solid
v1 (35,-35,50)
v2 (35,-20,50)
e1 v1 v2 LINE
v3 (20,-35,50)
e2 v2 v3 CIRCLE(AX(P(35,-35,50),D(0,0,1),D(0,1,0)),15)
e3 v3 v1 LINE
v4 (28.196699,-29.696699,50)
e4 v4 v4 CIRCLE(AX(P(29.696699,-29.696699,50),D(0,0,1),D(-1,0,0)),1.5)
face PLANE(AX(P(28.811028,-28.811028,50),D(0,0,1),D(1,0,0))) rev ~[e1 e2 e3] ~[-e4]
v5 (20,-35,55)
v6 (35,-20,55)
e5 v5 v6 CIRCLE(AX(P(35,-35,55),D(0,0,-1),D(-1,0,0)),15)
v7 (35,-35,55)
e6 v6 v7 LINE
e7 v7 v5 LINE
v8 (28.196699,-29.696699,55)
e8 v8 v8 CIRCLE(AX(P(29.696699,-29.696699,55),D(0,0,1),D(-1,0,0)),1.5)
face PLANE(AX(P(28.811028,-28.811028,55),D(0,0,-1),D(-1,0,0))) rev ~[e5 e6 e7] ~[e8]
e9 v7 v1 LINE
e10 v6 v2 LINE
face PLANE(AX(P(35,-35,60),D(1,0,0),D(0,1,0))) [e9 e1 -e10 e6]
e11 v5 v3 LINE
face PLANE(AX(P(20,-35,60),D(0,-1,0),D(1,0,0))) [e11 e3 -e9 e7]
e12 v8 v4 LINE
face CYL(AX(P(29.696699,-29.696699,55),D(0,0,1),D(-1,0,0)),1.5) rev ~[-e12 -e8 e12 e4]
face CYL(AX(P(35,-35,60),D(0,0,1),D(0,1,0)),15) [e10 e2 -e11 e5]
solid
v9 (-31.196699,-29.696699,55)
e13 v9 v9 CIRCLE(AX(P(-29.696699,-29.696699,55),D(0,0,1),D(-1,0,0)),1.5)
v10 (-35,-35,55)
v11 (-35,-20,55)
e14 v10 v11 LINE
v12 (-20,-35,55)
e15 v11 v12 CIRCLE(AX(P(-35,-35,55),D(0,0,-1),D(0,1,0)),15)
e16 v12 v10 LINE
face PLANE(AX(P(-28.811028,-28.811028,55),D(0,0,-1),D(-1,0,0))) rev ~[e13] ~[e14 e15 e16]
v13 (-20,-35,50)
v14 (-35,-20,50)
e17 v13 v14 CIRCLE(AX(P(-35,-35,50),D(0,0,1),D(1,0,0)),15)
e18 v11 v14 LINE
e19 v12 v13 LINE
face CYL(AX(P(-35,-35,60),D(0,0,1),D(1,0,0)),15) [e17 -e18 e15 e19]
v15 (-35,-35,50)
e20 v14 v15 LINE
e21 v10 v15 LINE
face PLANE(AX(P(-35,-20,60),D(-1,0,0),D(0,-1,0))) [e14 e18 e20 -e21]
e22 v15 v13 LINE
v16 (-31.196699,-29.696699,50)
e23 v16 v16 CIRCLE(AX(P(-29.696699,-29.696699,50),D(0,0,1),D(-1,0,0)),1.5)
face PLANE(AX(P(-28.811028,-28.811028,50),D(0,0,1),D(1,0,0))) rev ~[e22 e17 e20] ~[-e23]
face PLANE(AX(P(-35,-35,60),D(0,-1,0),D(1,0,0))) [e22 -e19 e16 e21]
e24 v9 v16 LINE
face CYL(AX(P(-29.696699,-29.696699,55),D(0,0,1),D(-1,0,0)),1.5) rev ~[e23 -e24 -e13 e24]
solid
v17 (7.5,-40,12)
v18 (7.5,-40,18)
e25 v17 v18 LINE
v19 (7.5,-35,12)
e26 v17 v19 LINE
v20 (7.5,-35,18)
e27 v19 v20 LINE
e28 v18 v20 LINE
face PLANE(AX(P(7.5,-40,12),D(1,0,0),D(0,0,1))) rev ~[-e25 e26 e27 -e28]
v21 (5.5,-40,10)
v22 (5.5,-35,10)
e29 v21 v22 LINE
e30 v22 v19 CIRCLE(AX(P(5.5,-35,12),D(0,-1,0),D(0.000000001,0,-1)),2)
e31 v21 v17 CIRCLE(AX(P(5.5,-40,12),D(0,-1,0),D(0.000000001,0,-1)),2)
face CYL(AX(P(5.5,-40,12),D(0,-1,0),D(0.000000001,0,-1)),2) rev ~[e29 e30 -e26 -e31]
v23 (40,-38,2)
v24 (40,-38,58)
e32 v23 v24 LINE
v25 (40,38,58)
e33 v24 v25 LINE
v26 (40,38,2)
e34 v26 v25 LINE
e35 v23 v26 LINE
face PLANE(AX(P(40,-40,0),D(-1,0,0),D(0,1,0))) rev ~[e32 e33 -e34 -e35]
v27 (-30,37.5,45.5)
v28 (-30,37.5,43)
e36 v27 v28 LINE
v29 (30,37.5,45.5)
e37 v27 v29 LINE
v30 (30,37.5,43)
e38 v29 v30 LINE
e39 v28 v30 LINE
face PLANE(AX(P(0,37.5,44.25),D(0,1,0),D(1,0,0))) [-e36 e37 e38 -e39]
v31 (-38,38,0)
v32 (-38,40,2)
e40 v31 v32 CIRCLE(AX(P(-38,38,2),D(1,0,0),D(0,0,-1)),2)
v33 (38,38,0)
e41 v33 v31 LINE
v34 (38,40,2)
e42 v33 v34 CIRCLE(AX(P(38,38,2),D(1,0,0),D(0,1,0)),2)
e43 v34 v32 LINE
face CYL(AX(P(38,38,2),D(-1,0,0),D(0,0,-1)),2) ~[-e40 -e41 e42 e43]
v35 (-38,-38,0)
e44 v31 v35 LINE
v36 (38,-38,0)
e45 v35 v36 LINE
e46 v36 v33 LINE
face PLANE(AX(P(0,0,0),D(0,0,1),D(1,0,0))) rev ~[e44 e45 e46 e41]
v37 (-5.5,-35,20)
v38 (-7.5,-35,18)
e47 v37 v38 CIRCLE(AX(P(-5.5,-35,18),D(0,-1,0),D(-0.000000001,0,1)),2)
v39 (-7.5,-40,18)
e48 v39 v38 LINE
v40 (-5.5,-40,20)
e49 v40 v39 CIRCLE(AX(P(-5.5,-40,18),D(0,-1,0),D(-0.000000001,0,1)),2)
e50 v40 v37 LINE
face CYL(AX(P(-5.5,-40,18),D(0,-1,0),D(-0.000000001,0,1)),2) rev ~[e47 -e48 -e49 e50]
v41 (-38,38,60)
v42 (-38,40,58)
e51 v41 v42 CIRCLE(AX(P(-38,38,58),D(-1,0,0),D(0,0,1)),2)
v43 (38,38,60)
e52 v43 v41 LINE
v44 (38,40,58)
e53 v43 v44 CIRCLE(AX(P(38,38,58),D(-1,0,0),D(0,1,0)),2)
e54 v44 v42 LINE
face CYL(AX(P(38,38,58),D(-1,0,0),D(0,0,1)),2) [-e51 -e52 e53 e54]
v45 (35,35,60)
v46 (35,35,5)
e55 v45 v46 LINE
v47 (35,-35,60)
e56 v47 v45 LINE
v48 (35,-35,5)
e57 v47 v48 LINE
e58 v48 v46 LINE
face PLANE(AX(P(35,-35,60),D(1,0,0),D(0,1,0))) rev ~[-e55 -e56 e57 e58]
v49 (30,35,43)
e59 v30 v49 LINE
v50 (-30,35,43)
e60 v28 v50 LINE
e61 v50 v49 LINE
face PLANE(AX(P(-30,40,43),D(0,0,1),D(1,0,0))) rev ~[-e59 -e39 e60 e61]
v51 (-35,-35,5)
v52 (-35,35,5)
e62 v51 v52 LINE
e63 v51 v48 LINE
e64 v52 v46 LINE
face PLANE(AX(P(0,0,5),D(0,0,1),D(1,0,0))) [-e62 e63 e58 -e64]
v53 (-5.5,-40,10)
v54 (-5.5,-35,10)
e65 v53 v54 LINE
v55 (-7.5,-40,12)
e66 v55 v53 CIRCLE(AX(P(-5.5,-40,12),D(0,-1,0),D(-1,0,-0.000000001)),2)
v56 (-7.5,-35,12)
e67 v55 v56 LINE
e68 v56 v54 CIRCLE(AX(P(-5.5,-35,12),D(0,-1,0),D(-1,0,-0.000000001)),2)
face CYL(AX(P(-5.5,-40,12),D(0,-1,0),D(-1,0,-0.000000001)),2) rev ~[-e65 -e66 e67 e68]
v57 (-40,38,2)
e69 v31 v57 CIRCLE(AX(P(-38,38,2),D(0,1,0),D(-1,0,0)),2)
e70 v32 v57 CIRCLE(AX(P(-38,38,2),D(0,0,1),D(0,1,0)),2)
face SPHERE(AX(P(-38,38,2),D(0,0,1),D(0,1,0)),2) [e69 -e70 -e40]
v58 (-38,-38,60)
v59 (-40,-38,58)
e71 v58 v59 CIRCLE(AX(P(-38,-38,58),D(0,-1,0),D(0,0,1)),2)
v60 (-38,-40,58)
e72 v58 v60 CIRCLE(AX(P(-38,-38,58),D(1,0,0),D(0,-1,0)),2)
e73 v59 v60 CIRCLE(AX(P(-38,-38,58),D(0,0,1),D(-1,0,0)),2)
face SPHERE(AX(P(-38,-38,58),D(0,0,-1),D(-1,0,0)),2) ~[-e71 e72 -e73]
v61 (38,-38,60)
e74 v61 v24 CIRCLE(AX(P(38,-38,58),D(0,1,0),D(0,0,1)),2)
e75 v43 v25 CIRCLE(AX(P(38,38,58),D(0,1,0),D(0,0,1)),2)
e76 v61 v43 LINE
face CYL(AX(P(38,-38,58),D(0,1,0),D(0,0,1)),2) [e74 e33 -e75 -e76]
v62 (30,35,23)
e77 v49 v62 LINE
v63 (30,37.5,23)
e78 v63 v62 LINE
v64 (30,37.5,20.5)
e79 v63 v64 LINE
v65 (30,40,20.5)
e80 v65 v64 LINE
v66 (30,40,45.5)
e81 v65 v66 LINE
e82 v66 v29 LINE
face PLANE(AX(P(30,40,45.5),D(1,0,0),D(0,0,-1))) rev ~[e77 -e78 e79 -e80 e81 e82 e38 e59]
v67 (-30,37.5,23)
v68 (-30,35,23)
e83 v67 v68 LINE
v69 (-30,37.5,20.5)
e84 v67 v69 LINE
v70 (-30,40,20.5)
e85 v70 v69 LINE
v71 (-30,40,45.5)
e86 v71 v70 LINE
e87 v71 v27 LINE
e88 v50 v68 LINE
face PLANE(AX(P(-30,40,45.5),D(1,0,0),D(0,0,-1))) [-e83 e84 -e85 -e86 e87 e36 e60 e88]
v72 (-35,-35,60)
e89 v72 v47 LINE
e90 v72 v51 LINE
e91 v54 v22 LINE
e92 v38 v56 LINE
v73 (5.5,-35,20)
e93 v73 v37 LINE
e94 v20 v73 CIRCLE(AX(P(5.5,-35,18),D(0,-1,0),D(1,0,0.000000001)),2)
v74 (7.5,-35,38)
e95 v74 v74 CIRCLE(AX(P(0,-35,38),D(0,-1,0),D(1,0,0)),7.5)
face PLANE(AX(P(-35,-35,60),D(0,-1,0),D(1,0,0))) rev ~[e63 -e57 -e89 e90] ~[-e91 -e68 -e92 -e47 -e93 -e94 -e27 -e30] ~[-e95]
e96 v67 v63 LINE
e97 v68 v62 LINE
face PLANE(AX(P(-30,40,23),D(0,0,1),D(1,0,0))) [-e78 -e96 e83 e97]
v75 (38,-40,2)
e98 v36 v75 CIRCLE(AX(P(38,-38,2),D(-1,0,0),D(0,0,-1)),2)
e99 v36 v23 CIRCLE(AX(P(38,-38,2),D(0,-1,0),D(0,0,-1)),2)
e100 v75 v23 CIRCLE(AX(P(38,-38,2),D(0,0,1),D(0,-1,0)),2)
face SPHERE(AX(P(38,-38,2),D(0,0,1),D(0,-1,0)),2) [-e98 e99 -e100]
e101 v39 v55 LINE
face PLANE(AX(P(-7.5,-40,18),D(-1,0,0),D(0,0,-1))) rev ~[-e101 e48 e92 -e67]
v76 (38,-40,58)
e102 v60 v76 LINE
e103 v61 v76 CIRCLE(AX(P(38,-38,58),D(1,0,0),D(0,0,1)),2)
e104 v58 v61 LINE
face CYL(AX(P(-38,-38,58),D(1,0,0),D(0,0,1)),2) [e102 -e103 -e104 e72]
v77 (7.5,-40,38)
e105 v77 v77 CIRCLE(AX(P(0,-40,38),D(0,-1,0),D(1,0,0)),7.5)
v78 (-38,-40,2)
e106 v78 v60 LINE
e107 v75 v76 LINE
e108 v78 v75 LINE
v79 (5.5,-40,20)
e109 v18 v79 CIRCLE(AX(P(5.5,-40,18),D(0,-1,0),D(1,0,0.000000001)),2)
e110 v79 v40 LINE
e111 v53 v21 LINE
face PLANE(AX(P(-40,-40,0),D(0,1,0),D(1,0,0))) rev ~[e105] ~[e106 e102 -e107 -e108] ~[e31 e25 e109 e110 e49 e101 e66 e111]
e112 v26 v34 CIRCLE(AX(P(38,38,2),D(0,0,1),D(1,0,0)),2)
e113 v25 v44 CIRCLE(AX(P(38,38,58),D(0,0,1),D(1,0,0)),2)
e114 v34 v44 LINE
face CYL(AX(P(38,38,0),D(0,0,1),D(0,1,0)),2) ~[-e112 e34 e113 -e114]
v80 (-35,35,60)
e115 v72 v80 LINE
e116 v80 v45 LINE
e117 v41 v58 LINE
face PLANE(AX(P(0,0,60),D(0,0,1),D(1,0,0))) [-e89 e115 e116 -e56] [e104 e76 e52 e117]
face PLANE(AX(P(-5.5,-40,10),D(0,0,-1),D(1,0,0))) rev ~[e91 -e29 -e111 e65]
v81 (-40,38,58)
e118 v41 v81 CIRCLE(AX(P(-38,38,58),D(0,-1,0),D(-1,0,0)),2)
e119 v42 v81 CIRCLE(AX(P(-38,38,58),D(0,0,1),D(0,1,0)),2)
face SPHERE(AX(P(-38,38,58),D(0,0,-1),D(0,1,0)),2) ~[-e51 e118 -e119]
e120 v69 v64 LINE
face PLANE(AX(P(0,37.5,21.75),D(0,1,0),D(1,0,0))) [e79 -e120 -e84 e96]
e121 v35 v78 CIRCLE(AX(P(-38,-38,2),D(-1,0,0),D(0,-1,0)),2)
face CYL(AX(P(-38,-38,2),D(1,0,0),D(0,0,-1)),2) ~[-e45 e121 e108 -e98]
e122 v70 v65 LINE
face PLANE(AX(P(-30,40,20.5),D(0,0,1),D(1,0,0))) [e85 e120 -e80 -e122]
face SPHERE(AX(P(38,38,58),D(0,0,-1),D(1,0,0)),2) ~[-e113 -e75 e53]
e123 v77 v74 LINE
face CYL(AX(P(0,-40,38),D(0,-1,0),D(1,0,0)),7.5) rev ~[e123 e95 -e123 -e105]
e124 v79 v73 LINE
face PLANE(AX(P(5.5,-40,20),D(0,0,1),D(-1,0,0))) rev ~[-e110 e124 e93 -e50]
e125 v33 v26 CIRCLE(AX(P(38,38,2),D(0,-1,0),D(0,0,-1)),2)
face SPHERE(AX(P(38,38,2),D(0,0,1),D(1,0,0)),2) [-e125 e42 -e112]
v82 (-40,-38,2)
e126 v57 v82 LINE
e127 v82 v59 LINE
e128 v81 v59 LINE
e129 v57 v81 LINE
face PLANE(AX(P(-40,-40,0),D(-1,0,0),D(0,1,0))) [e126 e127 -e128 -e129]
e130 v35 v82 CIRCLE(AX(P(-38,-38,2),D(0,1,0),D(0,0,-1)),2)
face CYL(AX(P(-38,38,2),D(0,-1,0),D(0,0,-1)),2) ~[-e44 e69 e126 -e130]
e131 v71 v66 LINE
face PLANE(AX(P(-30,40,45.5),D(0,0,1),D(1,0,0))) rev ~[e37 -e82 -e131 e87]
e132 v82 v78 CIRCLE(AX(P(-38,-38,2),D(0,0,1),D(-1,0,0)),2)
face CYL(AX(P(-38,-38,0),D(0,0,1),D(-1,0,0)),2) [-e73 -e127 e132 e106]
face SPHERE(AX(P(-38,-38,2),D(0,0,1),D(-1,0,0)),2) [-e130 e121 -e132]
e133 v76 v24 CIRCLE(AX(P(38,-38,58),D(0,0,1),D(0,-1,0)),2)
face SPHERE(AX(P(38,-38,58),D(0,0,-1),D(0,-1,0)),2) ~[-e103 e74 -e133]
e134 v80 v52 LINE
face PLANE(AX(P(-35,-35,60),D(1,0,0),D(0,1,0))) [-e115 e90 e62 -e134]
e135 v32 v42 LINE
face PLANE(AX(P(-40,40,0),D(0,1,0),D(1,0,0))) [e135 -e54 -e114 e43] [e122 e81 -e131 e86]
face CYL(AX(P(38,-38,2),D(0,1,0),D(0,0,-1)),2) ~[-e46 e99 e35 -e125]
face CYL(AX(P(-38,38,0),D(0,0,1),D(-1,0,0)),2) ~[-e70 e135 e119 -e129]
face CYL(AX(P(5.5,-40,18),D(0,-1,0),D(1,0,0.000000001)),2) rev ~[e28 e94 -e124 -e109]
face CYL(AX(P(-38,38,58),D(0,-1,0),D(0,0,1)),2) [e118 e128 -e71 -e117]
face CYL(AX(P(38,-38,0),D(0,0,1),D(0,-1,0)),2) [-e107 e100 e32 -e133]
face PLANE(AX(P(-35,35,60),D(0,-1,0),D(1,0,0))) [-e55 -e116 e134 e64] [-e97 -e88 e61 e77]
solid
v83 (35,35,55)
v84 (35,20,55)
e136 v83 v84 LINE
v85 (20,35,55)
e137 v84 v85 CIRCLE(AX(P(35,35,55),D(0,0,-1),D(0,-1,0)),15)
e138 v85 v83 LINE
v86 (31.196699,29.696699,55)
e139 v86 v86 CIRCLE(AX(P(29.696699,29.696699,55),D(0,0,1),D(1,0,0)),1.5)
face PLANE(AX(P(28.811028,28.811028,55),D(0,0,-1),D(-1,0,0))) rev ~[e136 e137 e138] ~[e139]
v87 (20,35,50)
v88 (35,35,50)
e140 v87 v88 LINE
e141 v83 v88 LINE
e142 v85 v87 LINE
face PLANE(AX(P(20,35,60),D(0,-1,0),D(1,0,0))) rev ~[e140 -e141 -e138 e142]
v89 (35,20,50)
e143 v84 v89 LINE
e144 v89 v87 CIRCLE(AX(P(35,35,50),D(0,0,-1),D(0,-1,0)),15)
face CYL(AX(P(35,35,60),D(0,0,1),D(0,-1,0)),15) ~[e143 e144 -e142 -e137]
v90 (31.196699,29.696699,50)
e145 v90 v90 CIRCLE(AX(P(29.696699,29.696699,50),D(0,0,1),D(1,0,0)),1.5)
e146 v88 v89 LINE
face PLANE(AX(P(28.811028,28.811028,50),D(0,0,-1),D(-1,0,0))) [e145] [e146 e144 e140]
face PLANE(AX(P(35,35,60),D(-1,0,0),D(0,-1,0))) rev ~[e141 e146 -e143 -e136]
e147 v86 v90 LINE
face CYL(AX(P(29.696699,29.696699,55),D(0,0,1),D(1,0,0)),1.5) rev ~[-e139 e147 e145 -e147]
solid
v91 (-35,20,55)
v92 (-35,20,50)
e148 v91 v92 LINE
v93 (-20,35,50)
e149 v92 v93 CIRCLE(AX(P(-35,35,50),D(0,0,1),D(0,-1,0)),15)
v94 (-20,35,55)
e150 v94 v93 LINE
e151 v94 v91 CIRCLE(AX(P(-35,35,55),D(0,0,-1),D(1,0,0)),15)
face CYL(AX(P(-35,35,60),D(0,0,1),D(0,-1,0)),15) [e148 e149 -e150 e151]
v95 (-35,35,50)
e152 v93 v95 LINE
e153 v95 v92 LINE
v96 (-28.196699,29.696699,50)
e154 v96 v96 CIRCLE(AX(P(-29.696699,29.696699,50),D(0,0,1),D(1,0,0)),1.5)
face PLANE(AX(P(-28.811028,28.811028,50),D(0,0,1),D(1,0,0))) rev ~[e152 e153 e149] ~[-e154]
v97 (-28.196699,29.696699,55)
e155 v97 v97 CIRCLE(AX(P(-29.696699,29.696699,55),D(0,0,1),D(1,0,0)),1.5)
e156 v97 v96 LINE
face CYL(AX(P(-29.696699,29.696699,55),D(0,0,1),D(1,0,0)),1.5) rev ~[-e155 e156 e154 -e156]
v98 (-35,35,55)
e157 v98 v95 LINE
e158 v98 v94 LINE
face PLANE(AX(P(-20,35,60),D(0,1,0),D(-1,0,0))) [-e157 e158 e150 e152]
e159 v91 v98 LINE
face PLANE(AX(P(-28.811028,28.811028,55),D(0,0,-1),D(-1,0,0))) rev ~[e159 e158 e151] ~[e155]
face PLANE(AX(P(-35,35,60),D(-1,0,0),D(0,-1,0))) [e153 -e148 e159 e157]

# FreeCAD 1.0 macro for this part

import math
import FreeCAD as App
import Part
import Sketcher
Q = App.Units.Quantity


def edges_at(feature, points):
    """Names of the edges that pass closest to the given points."""
    edges = feature.Shape.Edges
    near = lambda p: min(range(len(edges)), key=lambda i: edges[i].distToShape(Part.Vertex(*p))[0])
    return sorted({f"Edge{near(p) + 1}" for p in points})

doc = App.newDocument("Part")
body = doc.addObject("PartDesign::Body", "Body")

# Sketch on XY plane
sketch1 = body.newObject("Sketcher::SketchObject", "Sketch")
sketch1.AttachmentSupport = (doc.getObject("XY_Plane"), [""])
sketch1.MapMode = "FlatFace"
sketch1.addGeometry([
    Part.LineSegment(App.Vector(-40, 40, 0), App.Vector(-40, -40, 0)),
    Part.LineSegment(App.Vector(-40, -40, 0), App.Vector(40, -40, 0)),
    Part.LineSegment(App.Vector(40, -40, 0), App.Vector(40, 40, 0)),
    Part.LineSegment(App.Vector(40, 40, 0), App.Vector(-40, 40, 0)),
], False)
sketch1.addConstraint([
    Sketcher.Constraint("Coincident", 0, 2, 1, 1),
    Sketcher.Constraint("Coincident", 1, 2, 2, 1),
    Sketcher.Constraint("Coincident", 2, 2, 3, 1),
    Sketcher.Constraint("Coincident", 3, 2, 0, 1),
    Sketcher.Constraint("Vertical", 0),
    Sketcher.Constraint("Horizontal", 1),
    Sketcher.Constraint("Vertical", 2),
    Sketcher.Constraint("Horizontal", 3),
    Sketcher.Constraint("Symmetric", 0, 2, 2, 2, -1, 1),
    Sketcher.Constraint("Equal", 3, 0),
    Sketcher.Constraint("DistanceX", 1, 1, 1, 2, Q("80 mm")),
])
pad1 = body.newObject("PartDesign::Pad", "Pad")
pad1.Profile = sketch1
pad1.Length = 60

# Sketch on XY plane
sketch2 = body.newObject("Sketcher::SketchObject", "Sketch001")
sketch2.AttachmentSupport = (doc.getObject("XY_Plane"), [""])
sketch2.MapMode = "FlatFace"
sketch2.AttachmentOffset = App.Placement(App.Vector(0, 0, 60), App.Rotation())
sketch2.addGeometry([
    Part.LineSegment(App.Vector(-35, 35, 0), App.Vector(-35, -35, 0)),
    Part.LineSegment(App.Vector(-35, -35, 0), App.Vector(35, -35, 0)),
    Part.LineSegment(App.Vector(35, -35, 0), App.Vector(35, 35, 0)),
    Part.LineSegment(App.Vector(35, 35, 0), App.Vector(-35, 35, 0)),
], False)
sketch2.addConstraint([
    Sketcher.Constraint("Coincident", 0, 2, 1, 1),
    Sketcher.Constraint("Coincident", 1, 2, 2, 1),
    Sketcher.Constraint("Coincident", 2, 2, 3, 1),
    Sketcher.Constraint("Coincident", 3, 2, 0, 1),
    Sketcher.Constraint("Vertical", 0),
    Sketcher.Constraint("Horizontal", 1),
    Sketcher.Constraint("Vertical", 2),
    Sketcher.Constraint("Horizontal", 3),
    Sketcher.Constraint("Symmetric", 0, 2, 2, 2, -1, 1),
    Sketcher.Constraint("Equal", 3, 0),
    Sketcher.Constraint("DistanceX", 1, 1, 1, 2, Q("70 mm")),
])
pocket1 = body.newObject("PartDesign::Pocket", "Pocket")
pocket1.Profile = sketch2
pocket1.Length = 55

# Sketch on XZ plane
sketch3 = body.newObject("Sketcher::SketchObject", "Sketch002")
sketch3.AttachmentSupport = (doc.getObject("XZ_Plane"), [""])
sketch3.MapMode = "FlatFace"
sketch3.AttachmentOffset = App.Placement(App.Vector(0, 0, 40), App.Rotation())
sketch3.addGeometry([
    Part.LineSegment(App.Vector(5.5, 20, 0), App.Vector(-5.5, 20, 0)),  # 0
    Part.ArcOfCircle(Part.Circle(App.Vector(-5.5, 18, 0), App.Vector(0, 0, 1), 2), math.radians(90), math.radians(180)),  # 1
    Part.LineSegment(App.Vector(-7.5, 18, 0), App.Vector(-7.5, 12, 0)),  # 2
    Part.ArcOfCircle(Part.Circle(App.Vector(-5.5, 12, 0), App.Vector(0, 0, 1), 2), math.radians(-180), math.radians(-90)),  # 3
    Part.LineSegment(App.Vector(-5.5, 10, 0), App.Vector(5.5, 10, 0)),  # 4
    Part.ArcOfCircle(Part.Circle(App.Vector(5.5, 12, 0), App.Vector(0, 0, 1), 2), math.radians(-90), math.radians(0)),  # 5
    Part.LineSegment(App.Vector(7.5, 12, 0), App.Vector(7.5, 18, 0)),  # 6
    Part.ArcOfCircle(Part.Circle(App.Vector(5.5, 18, 0), App.Vector(0, 0, 1), 2), math.radians(0), math.radians(90)),  # 7
], False)
sketch3.addConstraint([
    Sketcher.Constraint("Tangent", 0, 2, 1, 1),
    Sketcher.Constraint("Tangent", 1, 2, 2, 1),
    Sketcher.Constraint("Tangent", 2, 2, 3, 1),
    Sketcher.Constraint("Tangent", 3, 2, 4, 1),
    Sketcher.Constraint("Tangent", 4, 2, 5, 1),
    Sketcher.Constraint("Tangent", 5, 2, 6, 1),
    Sketcher.Constraint("Tangent", 6, 2, 7, 1),
    Sketcher.Constraint("Tangent", 7, 2, 0, 1),
    Sketcher.Constraint("Horizontal", 0),
    Sketcher.Constraint("Vertical", 2),
    Sketcher.Constraint("Horizontal", 4),
    Sketcher.Constraint("Vertical", 6),
    Sketcher.Constraint("Equal", 1, 3),
    Sketcher.Constraint("Equal", 3, 5),
    Sketcher.Constraint("Equal", 5, 7),
    Sketcher.Constraint("Radius", 1, Q("2 mm")),
    Sketcher.Constraint("DistanceX", 0, 2, 0, 1, Q("11 mm")),
    Sketcher.Constraint("DistanceY", 2, 2, 2, 1, Q("6 mm")),
    Sketcher.Constraint("DistanceY", -1, 1, 1, 3, Q("18 mm")),
    Sketcher.Constraint("DistanceX", 1, 3, -1, 1, Q("5.5 mm")),
])
pocket2 = body.newObject("PartDesign::Pocket", "Pocket001")
pocket2.Profile = sketch3
pocket2.Length = 5
doc.recompute()

fillet = body.newObject("PartDesign::Fillet", "Fillet")
fillet.Base = (pocket2, edges_at(pocket2, [(40, -40, 30), (-40, -40, 30)]))
fillet.Radius = 2
doc.recompute()

fillet2 = body.newObject("PartDesign::Fillet", "Fillet001")
fillet2.Base = (fillet, edges_at(fillet, [(-40, 40, 30), (40, 40, 30)]))
fillet2.Radius = 2
doc.recompute()

fillet3 = body.newObject("PartDesign::Fillet", "Fillet002")
fillet3.Base = (fillet2, edges_at(fillet2, [
    (40, 0, 60),
    (0, -40, 60),
    (-39.414, -39.414, 60),
    (39.414, -39.414, 60),
    (-40, 0, 60),
    (0, 40, 60),
    (39.414, 39.414, 60),
    (-39.414, 39.414, 60),
]))
fillet3.Radius = 2
doc.recompute()

fillet4 = body.newObject("PartDesign::Fillet", "Fillet003")
fillet4.Base = (fillet3, edges_at(fillet3, [
    (40, 0, 0),
    (0, -40, 0),
    (-39.414, -39.414, 0),
    (39.414, -39.414, 0),
    (-40, 0, 0),
    (0, 40, 0),
    (39.414, 39.414, 0),
    (-39.414, 39.414, 0),
]))
fillet4.Radius = 2

# Sketch on XZ plane
sketch4 = body.newObject("Sketcher::SketchObject", "Sketch003")
sketch4.AttachmentSupport = (doc.getObject("XZ_Plane"), [""])
sketch4.MapMode = "FlatFace"
sketch4.AttachmentOffset = App.Placement(App.Vector(0, 0, 40), App.Rotation())
sketch4.addGeometry(Part.Circle(App.Vector(0, 38, 0), App.Vector(0, 0, 1), 7.5), False)
sketch4.addConstraint([
    Sketcher.Constraint("PointOnObject", 0, 3, -2),
    Sketcher.Constraint("Diameter", 0, Q("15 mm")),
    Sketcher.Constraint("DistanceY", -1, 1, 0, 3, Q("38 mm")),
])
pocket3 = body.newObject("PartDesign::Pocket", "Pocket002")
pocket3.Profile = sketch4
pocket3.Length = 5

# Sketch on XZ plane
sketch5 = body.newObject("Sketcher::SketchObject", "Sketch004")
sketch5.AttachmentSupport = (doc.getObject("XZ_Plane"), [""])
sketch5.MapMode = "FlatFace"
sketch5.AttachmentOffset = App.Placement(App.Vector(0, 0, -40), App.Rotation())
sketch5.addGeometry([
    Part.LineSegment(App.Vector(-30, 23, 0), App.Vector(-30, 43, 0)),
    Part.LineSegment(App.Vector(-30, 43, 0), App.Vector(30, 43, 0)),
    Part.LineSegment(App.Vector(30, 43, 0), App.Vector(30, 23, 0)),
    Part.LineSegment(App.Vector(30, 23, 0), App.Vector(-30, 23, 0)),
], False)
sketch5.addConstraint([
    Sketcher.Constraint("Coincident", 0, 2, 1, 1),
    Sketcher.Constraint("Coincident", 1, 2, 2, 1),
    Sketcher.Constraint("Coincident", 2, 2, 3, 1),
    Sketcher.Constraint("Coincident", 3, 2, 0, 1),
    Sketcher.Constraint("Vertical", 0),
    Sketcher.Constraint("Horizontal", 1),
    Sketcher.Constraint("Vertical", 2),
    Sketcher.Constraint("Horizontal", 3),
    Sketcher.Constraint("DistanceX", 1, 1, 1, 2, Q("60 mm")),
    Sketcher.Constraint("DistanceY", 0, 1, 0, 2, Q("20 mm")),
    Sketcher.Constraint("DistanceX", 0, 2, -1, 1, Q("30 mm")),
    Sketcher.Constraint("DistanceY", -1, 1, 0, 2, Q("43 mm")),
])
pocket4 = body.newObject("PartDesign::Pocket", "Pocket003")
pocket4.Profile = sketch5
pocket4.Length = 5
pocket4.Reversed = True

# Sketch on XZ plane
sketch6 = body.newObject("Sketcher::SketchObject", "Sketch005")
sketch6.AttachmentSupport = (doc.getObject("XZ_Plane"), [""])
sketch6.MapMode = "FlatFace"
sketch6.AttachmentOffset = App.Placement(App.Vector(0, 0, -40), App.Rotation())
sketch6.addGeometry([
    Part.LineSegment(App.Vector(-30, 20.5, 0), App.Vector(-30, 23, 0)),  # 0
    Part.LineSegment(App.Vector(-30, 23, 0), App.Vector(30, 23, 0)),  # 1
    Part.LineSegment(App.Vector(30, 23, 0), App.Vector(30, 20.5, 0)),  # 2
    Part.LineSegment(App.Vector(30, 20.5, 0), App.Vector(-30, 20.5, 0)),  # 3
    Part.LineSegment(App.Vector(-30, 43, 0), App.Vector(-30, 45.5, 0)),  # 4
    Part.LineSegment(App.Vector(-30, 45.5, 0), App.Vector(30, 45.5, 0)),  # 5
    Part.LineSegment(App.Vector(30, 45.5, 0), App.Vector(30, 43, 0)),  # 6
    Part.LineSegment(App.Vector(30, 43, 0), App.Vector(-30, 43, 0)),  # 7
], False)
sketch6.addConstraint([
    Sketcher.Constraint("Coincident", 0, 2, 1, 1),
    Sketcher.Constraint("Coincident", 1, 2, 2, 1),
    Sketcher.Constraint("Coincident", 2, 2, 3, 1),
    Sketcher.Constraint("Coincident", 3, 2, 0, 1),
    Sketcher.Constraint("Coincident", 4, 2, 5, 1),
    Sketcher.Constraint("Coincident", 5, 2, 6, 1),
    Sketcher.Constraint("Coincident", 6, 2, 7, 1),
    Sketcher.Constraint("Coincident", 7, 2, 4, 1),
    Sketcher.Constraint("Vertical", 0),
    Sketcher.Constraint("Horizontal", 1),
    Sketcher.Constraint("Vertical", 2),
    Sketcher.Constraint("Horizontal", 3),
    Sketcher.Constraint("Vertical", 4),
    Sketcher.Constraint("Horizontal", 5),
    Sketcher.Constraint("Vertical", 6),
    Sketcher.Constraint("Horizontal", 7),
    Sketcher.Constraint("Vertical", 3, 2, 4, 2),
    Sketcher.Constraint("Vertical", 2, 2, 5, 2),
    Sketcher.Constraint("Equal", 2, 4),
    Sketcher.Constraint("DistanceX", 1, 1, 1, 2, Q("60 mm")),
    Sketcher.Constraint("DistanceY", 0, 1, 0, 2, Q("2.5 mm")),
    Sketcher.Constraint("DistanceX", 0, 2, -1, 1, Q("30 mm")),
    Sketcher.Constraint("DistanceY", -1, 1, 0, 2, Q("23 mm")),
    Sketcher.Constraint("DistanceY", -1, 1, 6, 2, Q("43 mm")),
])
pocket5 = body.newObject("PartDesign::Pocket", "Pocket004")
pocket5.Profile = sketch6
pocket5.Length = 2.5
pocket5.Reversed = True
body2 = doc.addObject("PartDesign::Body", "Body001")

# Sketch on XY plane
sketch7 = body2.newObject("Sketcher::SketchObject", "Sketch006")
sketch7.AttachmentSupport = (doc.getObject("XY_Plane001"), [""])
sketch7.MapMode = "FlatFace"
sketch7.AttachmentOffset = App.Placement(App.Vector(0, 0, 60), App.Rotation())
sketch7.addGeometry([
    Part.LineSegment(App.Vector(-35, 35, 0), App.Vector(-35, 20, 0)),
    Part.ArcOfCircle(Part.Circle(App.Vector(-35, 35, 0), App.Vector(0, 0, 1), 15), math.radians(-90), math.radians(0)),
    Part.LineSegment(App.Vector(-20, 35, 0), App.Vector(-35, 35, 0)),
], False)
sketch7.addConstraint([
    Sketcher.Constraint("Coincident", 0, 2, 1, 1),
    Sketcher.Constraint("Coincident", 1, 2, 2, 1),
    Sketcher.Constraint("Coincident", 2, 2, 0, 1),
    Sketcher.Constraint("Vertical", 0),
    Sketcher.Constraint("Horizontal", 2),
    Sketcher.Constraint("Coincident", 2, 2, 1, 3),
    Sketcher.Constraint("Radius", 1, Q("15 mm")),
    Sketcher.Constraint("DistanceX", 1, 3, -1, 1, Q("35 mm")),
    Sketcher.Constraint("DistanceY", -1, 1, 1, 3, Q("35 mm")),
])
pad2 = body2.newObject("PartDesign::Pad", "Pad001")
pad2.Profile = sketch7
pad2.Length = 10
pad2.Reversed = True
body3 = doc.addObject("PartDesign::Body", "Body002")

# Sketch on XY plane
sketch8 = body3.newObject("Sketcher::SketchObject", "Sketch007")
sketch8.AttachmentSupport = (doc.getObject("XY_Plane002"), [""])
sketch8.MapMode = "FlatFace"
sketch8.AttachmentOffset = App.Placement(App.Vector(0, 0, 60), App.Rotation())
sketch8.addGeometry([
    Part.LineSegment(App.Vector(35, 20, 0), App.Vector(35, 35, 0)),
    Part.LineSegment(App.Vector(35, 35, 0), App.Vector(20, 35, 0)),
    Part.ArcOfCircle(Part.Circle(App.Vector(35, 35, 0), App.Vector(0, 0, 1), 15), math.radians(180), math.radians(270)),
], False)
sketch8.addConstraint([
    Sketcher.Constraint("Coincident", 0, 2, 1, 1),
    Sketcher.Constraint("Coincident", 1, 2, 2, 1),
    Sketcher.Constraint("Coincident", 2, 2, 0, 1),
    Sketcher.Constraint("Vertical", 0),
    Sketcher.Constraint("Horizontal", 1),
    Sketcher.Constraint("Coincident", 0, 2, 2, 3),
    Sketcher.Constraint("Radius", 2, Q("15 mm")),
    Sketcher.Constraint("DistanceX", -1, 1, 2, 3, Q("35 mm")),
    Sketcher.Constraint("DistanceY", -1, 1, 2, 3, Q("35 mm")),
])
pad3 = body3.newObject("PartDesign::Pad", "Pad002")
pad3.Profile = sketch8
pad3.Length = 10
pad3.Reversed = True
body4 = doc.addObject("PartDesign::Body", "Body003")

# Sketch on XY plane
sketch9 = body4.newObject("Sketcher::SketchObject", "Sketch008")
sketch9.AttachmentSupport = (doc.getObject("XY_Plane003"), [""])
sketch9.MapMode = "FlatFace"
sketch9.AttachmentOffset = App.Placement(App.Vector(0, 0, 60), App.Rotation())
sketch9.addGeometry([
    Part.LineSegment(App.Vector(20, -35, 0), App.Vector(35, -35, 0)),
    Part.LineSegment(App.Vector(35, -35, 0), App.Vector(35, -20, 0)),
    Part.ArcOfCircle(Part.Circle(App.Vector(35, -35, 0), App.Vector(0, 0, 1), 15), math.radians(90), math.radians(180)),
], False)
sketch9.addConstraint([
    Sketcher.Constraint("Coincident", 0, 2, 1, 1),
    Sketcher.Constraint("Coincident", 1, 2, 2, 1),
    Sketcher.Constraint("Coincident", 2, 2, 0, 1),
    Sketcher.Constraint("Horizontal", 0),
    Sketcher.Constraint("Vertical", 1),
    Sketcher.Constraint("Coincident", 0, 2, 2, 3),
    Sketcher.Constraint("Radius", 2, Q("15 mm")),
    Sketcher.Constraint("DistanceX", -1, 1, 2, 3, Q("35 mm")),
    Sketcher.Constraint("DistanceY", 2, 3, -1, 1, Q("35 mm")),
])
pad4 = body4.newObject("PartDesign::Pad", "Pad003")
pad4.Profile = sketch9
pad4.Length = 10
pad4.Reversed = True
body5 = doc.addObject("PartDesign::Body", "Body004")

# Sketch on XY plane
sketch10 = body5.newObject("Sketcher::SketchObject", "Sketch009")
sketch10.AttachmentSupport = (doc.getObject("XY_Plane004"), [""])
sketch10.MapMode = "FlatFace"
sketch10.AttachmentOffset = App.Placement(App.Vector(0, 0, 60), App.Rotation())
sketch10.addGeometry([
    Part.LineSegment(App.Vector(-35, -20, 0), App.Vector(-35, -35, 0)),
    Part.LineSegment(App.Vector(-35, -35, 0), App.Vector(-20, -35, 0)),
    Part.ArcOfCircle(Part.Circle(App.Vector(-35, -35, 0), App.Vector(0, 0, 1), 15), math.radians(0), math.radians(90)),
], False)
sketch10.addConstraint([
    Sketcher.Constraint("Coincident", 0, 2, 1, 1),
    Sketcher.Constraint("Coincident", 1, 2, 2, 1),
    Sketcher.Constraint("Coincident", 2, 2, 0, 1),
    Sketcher.Constraint("Vertical", 0),
    Sketcher.Constraint("Horizontal", 1),
    Sketcher.Constraint("Coincident", 0, 2, 2, 3),
    Sketcher.Constraint("Radius", 2, Q("15 mm")),
    Sketcher.Constraint("DistanceX", 2, 3, -1, 1, Q("35 mm")),
    Sketcher.Constraint("DistanceY", 2, 3, -1, 1, Q("35 mm")),
])
pad5 = body5.newObject("PartDesign::Pad", "Pad004")
pad5.Profile = sketch10
pad5.Length = 10
pad5.Reversed = True
body6 = doc.addObject("PartDesign::Body", "Body005")
body6.AllowCompound = True

# Sketch on XY plane
sketch11 = body6.newObject("Sketcher::SketchObject", "Sketch010")
sketch11.AttachmentSupport = (doc.getObject("XY_Plane005"), [""])
sketch11.MapMode = "FlatFace"
sketch11.AttachmentOffset = App.Placement(App.Vector(0, 0, 60), App.Rotation())
sketch11.addGeometry([
    Part.LineSegment(App.Vector(-20, 35, 0), App.Vector(-35, 35, 0)),  # 0
    Part.LineSegment(App.Vector(-35, 35, 0), App.Vector(-35, 20, 0)),  # 1
    Part.ArcOfCircle(Part.Circle(App.Vector(-35, 35, 0), App.Vector(0, 0, 1), 15), math.radians(-90), math.radians(0)),  # 2
    Part.LineSegment(App.Vector(35, 20, 0), App.Vector(35, 35, 0)),  # 3
    Part.LineSegment(App.Vector(35, 35, 0), App.Vector(20, 35, 0)),  # 4
    Part.ArcOfCircle(Part.Circle(App.Vector(35, 35, 0), App.Vector(0, 0, 1), 15), math.radians(180), math.radians(270)),  # 5
    Part.LineSegment(App.Vector(35, -35, 0), App.Vector(35, -20, 0)),  # 6
    Part.ArcOfCircle(Part.Circle(App.Vector(35, -35, 0), App.Vector(0, 0, 1), 15), math.radians(90), math.radians(180)),  # 7
    Part.LineSegment(App.Vector(20, -35, 0), App.Vector(35, -35, 0)),  # 8
    Part.LineSegment(App.Vector(-35, -35, 0), App.Vector(-20, -35, 0)),  # 9
    Part.ArcOfCircle(Part.Circle(App.Vector(-35, -35, 0), App.Vector(0, 0, 1), 15), math.radians(0), math.radians(90)),  # 10
    Part.LineSegment(App.Vector(-35, -20, 0), App.Vector(-35, -35, 0)),  # 11
], False)
sketch11.addConstraint([
    Sketcher.Constraint("Coincident", 0, 2, 1, 1),
    Sketcher.Constraint("Coincident", 1, 2, 2, 1),
    Sketcher.Constraint("Coincident", 2, 2, 0, 1),
    Sketcher.Constraint("Coincident", 3, 2, 4, 1),
    Sketcher.Constraint("Coincident", 4, 2, 5, 1),
    Sketcher.Constraint("Coincident", 5, 2, 3, 1),
    Sketcher.Constraint("Coincident", 6, 2, 7, 1),
    Sketcher.Constraint("Coincident", 7, 2, 8, 1),
    Sketcher.Constraint("Coincident", 8, 2, 6, 1),
    Sketcher.Constraint("Coincident", 9, 2, 10, 1),
    Sketcher.Constraint("Coincident", 10, 2, 11, 1),
    Sketcher.Constraint("Coincident", 11, 2, 9, 1),
    Sketcher.Constraint("Horizontal", 0),
    Sketcher.Constraint("Vertical", 1),
    Sketcher.Constraint("Vertical", 3),
    Sketcher.Constraint("Horizontal", 4),
    Sketcher.Constraint("Vertical", 6),
    Sketcher.Constraint("Horizontal", 8),
    Sketcher.Constraint("Horizontal", 9),
    Sketcher.Constraint("Vertical", 11),
    Sketcher.Constraint("Coincident", 0, 2, 2, 3),
    Sketcher.Constraint("Coincident", 3, 2, 5, 3),
    Sketcher.Constraint("Coincident", 8, 2, 7, 3),
    Sketcher.Constraint("Coincident", 11, 2, 10, 3),
    Sketcher.Constraint("Equal", 2, 5),
    Sketcher.Constraint("Equal", 5, 7),
    Sketcher.Constraint("Equal", 7, 10),
    Sketcher.Constraint("Symmetric", 2, 3, 7, 3, -1, 1),
    Sketcher.Constraint("Symmetric", 5, 3, 10, 3, -1, 1),
    Sketcher.Constraint("Symmetric", 2, 3, 5, 3, -2),
    Sketcher.Constraint("Radius", 2, Q("15 mm")),
    Sketcher.Constraint("DistanceX", 2, 3, -1, 1, Q("35 mm")),
    Sketcher.Constraint("DistanceY", -1, 1, 2, 3, Q("35 mm")),
])
pad6 = body6.newObject("PartDesign::Pad", "Pad005")
pad6.Profile = sketch11
pad6.Length = 5
pad6.Reversed = True
doc.recompute()

body7 = doc.addObject("PartDesign::Body", "Body006")
body7.BaseFeature = body6
boolean = body2.newObject("PartDesign::Boolean", "Boolean")
boolean.Type = "Cut"
boolean.addObjects([body7])
doc.recompute()

body8 = doc.addObject("PartDesign::Body", "Body007")
body8.BaseFeature = body6
boolean2 = body3.newObject("PartDesign::Boolean", "Boolean001")
boolean2.Type = "Cut"
boolean2.addObjects([body8])
doc.recompute()

body9 = doc.addObject("PartDesign::Body", "Body008")
body9.BaseFeature = body6
boolean3 = body4.newObject("PartDesign::Boolean", "Boolean002")
boolean3.Type = "Cut"
boolean3.addObjects([body9])
doc.recompute()

boolean4 = body5.newObject("PartDesign::Boolean", "Boolean003")
boolean4.Type = "Cut"
boolean4.addObjects([body6])
body10 = doc.addObject("PartDesign::Body", "Body009")
body10.AllowCompound = True

# Sketch on XY plane
sketch12 = body10.newObject("Sketcher::SketchObject", "Sketch011")
sketch12.AttachmentSupport = (doc.getObject("XY_Plane009"), [""])
sketch12.MapMode = "FlatFace"
sketch12.AttachmentOffset = App.Placement(App.Vector(0, 0, 55), App.Rotation())
sketch12.addGeometry([
    Part.Circle(App.Vector(-29.696699, 29.696699, 0), App.Vector(0, 0, 1), 1.5),
    Part.Circle(App.Vector(29.696699, 29.696699, 0), App.Vector(0, 0, 1), 1.5),
    Part.Circle(App.Vector(29.696699, -29.696699, 0), App.Vector(0, 0, 1), 1.5),
    Part.Circle(App.Vector(-29.696699, -29.696699, 0), App.Vector(0, 0, 1), 1.5),
], False)
sketch12.addConstraint([
    Sketcher.Constraint("Equal", 0, 1),
    Sketcher.Constraint("Equal", 1, 2),
    Sketcher.Constraint("Equal", 2, 3),
    Sketcher.Constraint("Symmetric", 0, 3, 2, 3, -1, 1),
    Sketcher.Constraint("Symmetric", 1, 3, 3, 3, -1, 1),
    Sketcher.Constraint("Symmetric", 0, 3, 1, 3, -2),
    Sketcher.Constraint("Diameter", 0, Q("3 mm")),
    Sketcher.Constraint("DistanceX", 0, 3, -1, 1, Q("29.696699 mm")),
    Sketcher.Constraint("DistanceY", -1, 1, 0, 3, Q("29.696699 mm")),
])
pad7 = body10.newObject("PartDesign::Pad", "Pad006")
pad7.Profile = sketch12
pad7.Length = 5
pad7.Reversed = True
doc.recompute()

body11 = doc.addObject("PartDesign::Body", "Body010")
body11.BaseFeature = body10
boolean5 = body2.newObject("PartDesign::Boolean", "Boolean004")
boolean5.Type = "Cut"
boolean5.addObjects([body11])
doc.recompute()

body12 = doc.addObject("PartDesign::Body", "Body011")
body12.BaseFeature = body10
boolean6 = body3.newObject("PartDesign::Boolean", "Boolean005")
boolean6.Type = "Cut"
boolean6.addObjects([body12])
doc.recompute()

body13 = doc.addObject("PartDesign::Body", "Body012")
body13.BaseFeature = body10
boolean7 = body4.newObject("PartDesign::Boolean", "Boolean006")
boolean7.Type = "Cut"
boolean7.addObjects([body13])
doc.recompute()

boolean8 = body5.newObject("PartDesign::Boolean", "Boolean007")
boolean8.Type = "Cut"
boolean8.addObjects([body10])

doc.recompute()
